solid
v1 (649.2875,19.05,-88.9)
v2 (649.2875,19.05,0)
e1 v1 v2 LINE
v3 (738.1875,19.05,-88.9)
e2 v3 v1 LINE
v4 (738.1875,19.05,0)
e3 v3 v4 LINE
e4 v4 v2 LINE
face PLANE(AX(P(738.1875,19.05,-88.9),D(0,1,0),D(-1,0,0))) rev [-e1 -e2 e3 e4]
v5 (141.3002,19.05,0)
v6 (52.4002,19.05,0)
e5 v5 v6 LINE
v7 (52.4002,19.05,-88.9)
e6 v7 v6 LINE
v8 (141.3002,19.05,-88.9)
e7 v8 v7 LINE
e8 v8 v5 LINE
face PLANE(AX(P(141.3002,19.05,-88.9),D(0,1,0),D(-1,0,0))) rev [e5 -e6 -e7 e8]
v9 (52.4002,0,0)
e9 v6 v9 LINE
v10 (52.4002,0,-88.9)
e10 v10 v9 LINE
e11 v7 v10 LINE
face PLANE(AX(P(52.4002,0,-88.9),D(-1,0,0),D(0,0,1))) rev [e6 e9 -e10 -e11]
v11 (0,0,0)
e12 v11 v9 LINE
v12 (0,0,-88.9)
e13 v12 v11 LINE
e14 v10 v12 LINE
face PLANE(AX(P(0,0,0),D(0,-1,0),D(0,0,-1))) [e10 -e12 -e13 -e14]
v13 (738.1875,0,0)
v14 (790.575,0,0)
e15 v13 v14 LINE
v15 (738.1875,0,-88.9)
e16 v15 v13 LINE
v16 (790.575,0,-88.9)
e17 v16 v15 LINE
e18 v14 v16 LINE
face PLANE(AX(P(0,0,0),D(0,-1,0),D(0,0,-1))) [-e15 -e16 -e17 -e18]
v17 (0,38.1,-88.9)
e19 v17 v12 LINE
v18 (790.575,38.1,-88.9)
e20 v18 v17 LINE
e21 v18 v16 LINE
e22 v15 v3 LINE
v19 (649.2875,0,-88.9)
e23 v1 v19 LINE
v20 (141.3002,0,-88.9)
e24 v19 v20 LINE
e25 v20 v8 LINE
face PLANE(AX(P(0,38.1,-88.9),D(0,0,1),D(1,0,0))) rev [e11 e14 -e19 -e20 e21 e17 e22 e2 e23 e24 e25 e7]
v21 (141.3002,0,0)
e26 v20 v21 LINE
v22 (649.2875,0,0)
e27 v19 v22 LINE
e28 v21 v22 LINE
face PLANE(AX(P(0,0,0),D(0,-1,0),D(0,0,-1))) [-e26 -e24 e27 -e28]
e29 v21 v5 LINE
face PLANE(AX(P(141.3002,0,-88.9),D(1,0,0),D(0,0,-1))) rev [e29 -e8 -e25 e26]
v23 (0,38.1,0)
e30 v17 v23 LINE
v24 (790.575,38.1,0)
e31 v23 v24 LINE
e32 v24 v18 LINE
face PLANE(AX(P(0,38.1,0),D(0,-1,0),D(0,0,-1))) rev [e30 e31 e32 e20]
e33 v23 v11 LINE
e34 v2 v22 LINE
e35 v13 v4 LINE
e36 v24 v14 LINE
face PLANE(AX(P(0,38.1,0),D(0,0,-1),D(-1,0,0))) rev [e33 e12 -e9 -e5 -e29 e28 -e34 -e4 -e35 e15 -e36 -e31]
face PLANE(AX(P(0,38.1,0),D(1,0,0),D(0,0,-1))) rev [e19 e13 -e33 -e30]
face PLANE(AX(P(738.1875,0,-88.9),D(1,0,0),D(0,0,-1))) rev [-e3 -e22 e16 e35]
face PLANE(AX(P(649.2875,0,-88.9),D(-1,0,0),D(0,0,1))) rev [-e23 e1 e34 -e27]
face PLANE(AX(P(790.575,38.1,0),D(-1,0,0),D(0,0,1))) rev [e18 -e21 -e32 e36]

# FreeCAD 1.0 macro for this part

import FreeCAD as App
import Part
import Sketcher
Q = App.Units.Quantity


def add_polygon(sketch, points):
    """Adds a closed chain of lines whose ends are joined by coincident constraints."""
    first, n = sketch.GeometryCount, len(points)
    for a, b in zip(points, points[1:] + points[:1]):
        sketch.addGeometry(Part.LineSegment(App.Vector(*a, 0), App.Vector(*b, 0)), False)
    for i in range(n):
        sketch.addConstraint(Sketcher.Constraint("Coincident", first + i, 2, first + (i + 1) % n, 1))

doc = App.newDocument("Part")
params = doc.addObject("Spreadsheet::Sheet", "Params")
for row, (alias, value) in enumerate([
    ("sketch1_height", "3.5 in"),
    ("sketch1_width", "31.125 in"),
    ("pad1_length", "1.5 in"),
    ("sketch2_width", "3.5 in"),
    ("sketch2_height", "0.75 in"),
], start=1):
    params.set(f"A{row}", alias)
    params.set(f"B{row}", "=" + value)
    params.setAlias(f"B{row}", alias)

body = doc.addObject("PartDesign::Body", "Body")

# Sketch on XZ plane
sketch1 = body.newObject("Sketcher::SketchObject", "Sketch")
sketch1.AttachmentSupport = (doc.getObject("XZ_Plane"), [""])
sketch1.MapMode = "FlatFace"
add_polygon(sketch1, [(0, -88.9), (0, 0), (790.575, 0), (790.575, -88.9)])  # lines 0-3
sketch1.addConstraint(Sketcher.Constraint("Vertical", 0))
sketch1.addConstraint(Sketcher.Constraint("Horizontal", 1))
sketch1.addConstraint(Sketcher.Constraint("Vertical", 2))
sketch1.addConstraint(Sketcher.Constraint("Horizontal", 3))
sketch1.addConstraint(Sketcher.Constraint("Coincident", 0, 2, -1, 1))
sketch1.addConstraint(Sketcher.Constraint("DistanceY", 0, 1, 0, 2, Q("3.5 in")))
sketch1.addConstraint(Sketcher.Constraint("DistanceX", 1, 1, 1, 2, Q("31.125 in")))
sketch1.setExpression("Constraints[9]", "Params.sketch1_height")
sketch1.setExpression("Constraints[10]", "Params.sketch1_width")
pad1 = body.newObject("PartDesign::Pad", "Pad")
pad1.Profile = sketch1
pad1.setExpression("Length", "Params.pad1_length")
pad1.Reversed = True

# Sketch on XY plane
sketch2 = body.newObject("Sketcher::SketchObject", "Sketch001")
sketch2.AttachmentSupport = (doc.getObject("XY_Plane"), [""])
sketch2.MapMode = "FlatFace"
add_polygon(sketch2, [(649.2875, 19.05), (649.2875, 0), (738.1875, 0), (738.1875, 19.05)])  # lines 0-3
add_polygon(sketch2, [(52.4002, 19.05), (52.4002, 0), (141.3002, 0), (141.3002, 19.05)])  # lines 4-7
sketch2.addConstraint(Sketcher.Constraint("Vertical", 0))
sketch2.addConstraint(Sketcher.Constraint("Horizontal", 1))
sketch2.addConstraint(Sketcher.Constraint("Vertical", 2))
sketch2.addConstraint(Sketcher.Constraint("Horizontal", 3))
sketch2.addConstraint(Sketcher.Constraint("Vertical", 4))
sketch2.addConstraint(Sketcher.Constraint("Horizontal", 5))
sketch2.addConstraint(Sketcher.Constraint("Vertical", 6))
sketch2.addConstraint(Sketcher.Constraint("Horizontal", 7))
sketch2.addConstraint(Sketcher.Constraint("PointOnObject", 0, 2, -1))
sketch2.addConstraint(Sketcher.Constraint("PointOnObject", 4, 2, -1))
sketch2.addConstraint(Sketcher.Constraint("Horizontal", 3, 2, 6, 2))
sketch2.addConstraint(Sketcher.Constraint("Equal", 3, 5))
sketch2.addConstraint(Sketcher.Constraint("DistanceX", 1, 1, 1, 2, Q("3.5 in")))
sketch2.addConstraint(Sketcher.Constraint("DistanceY", 0, 2, 0, 1, Q("0.75 in")))
sketch2.addConstraint(Sketcher.Constraint("DistanceX", -1, 1, 0, 2, Q("25.5625 in")))
sketch2.addConstraint(Sketcher.Constraint("DistanceX", -1, 1, 4, 2, Q("2.063 in")))
sketch2.setExpression("Constraints[20]", "Params.sketch2_width")
sketch2.setExpression("Constraints[21]", "Params.sketch2_height")
pocket1 = body.newObject("PartDesign::Pocket", "Pocket")
pocket1.Profile = sketch2
pocket1.Type = "ThroughAll"

doc.recompute()
